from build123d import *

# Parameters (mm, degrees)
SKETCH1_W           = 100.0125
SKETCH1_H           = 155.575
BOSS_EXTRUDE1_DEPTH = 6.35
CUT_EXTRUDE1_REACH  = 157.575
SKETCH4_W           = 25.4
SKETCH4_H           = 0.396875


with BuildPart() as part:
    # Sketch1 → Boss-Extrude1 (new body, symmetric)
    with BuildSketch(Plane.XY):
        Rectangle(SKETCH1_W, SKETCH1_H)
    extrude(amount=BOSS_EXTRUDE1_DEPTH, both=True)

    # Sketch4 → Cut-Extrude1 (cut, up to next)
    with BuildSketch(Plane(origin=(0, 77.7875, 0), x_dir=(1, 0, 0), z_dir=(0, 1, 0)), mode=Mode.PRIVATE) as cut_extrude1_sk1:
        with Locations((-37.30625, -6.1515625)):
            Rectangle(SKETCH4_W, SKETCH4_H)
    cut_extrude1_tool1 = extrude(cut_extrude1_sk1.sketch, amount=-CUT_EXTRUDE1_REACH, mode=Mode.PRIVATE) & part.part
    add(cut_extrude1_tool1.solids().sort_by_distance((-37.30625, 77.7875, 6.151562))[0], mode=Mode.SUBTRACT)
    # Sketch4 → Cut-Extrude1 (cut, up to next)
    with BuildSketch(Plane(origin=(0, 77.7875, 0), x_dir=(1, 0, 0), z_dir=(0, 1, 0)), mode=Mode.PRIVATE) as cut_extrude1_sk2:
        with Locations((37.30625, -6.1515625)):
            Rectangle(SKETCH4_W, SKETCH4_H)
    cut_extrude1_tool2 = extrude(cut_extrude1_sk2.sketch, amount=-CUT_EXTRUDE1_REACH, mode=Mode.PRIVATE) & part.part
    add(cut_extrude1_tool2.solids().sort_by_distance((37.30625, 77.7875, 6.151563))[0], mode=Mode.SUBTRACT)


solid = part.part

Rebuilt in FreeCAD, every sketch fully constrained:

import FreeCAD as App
import Part
import Sketcher

V = App.Vector
Q = App.Units.Quantity

doc = App.newDocument("Part")
body = doc.addObject("PartDesign::Body", "Body")

# Sketch on XY plane
sketch1 = body.newObject("Sketcher::SketchObject", "Sketch")
sketch1.AttachmentSupport = (doc.getObject("XY_Plane"), [""])
sketch1.MapMode = "FlatFace"
sketch1.addGeometry([
    Part.LineSegment(V(-50, 78, 0), V(-50, -78, 0)),
    Part.LineSegment(V(-50, -78, 0), V(50, -78, 0)),
    Part.LineSegment(V(50, -78, 0), V(50, 78, 0)),
    Part.LineSegment(V(50, 78, 0), V(-50, 78, 0)),
], False)
sketch1.addConstraint([
    Sketcher.Constraint("Coincident", 0, 2, 1, 1),
    Sketcher.Constraint("Coincident", 1, 2, 2, 1),
    Sketcher.Constraint("Coincident", 2, 2, 3, 1),
    Sketcher.Constraint("Coincident", 3, 2, 0, 1),
    Sketcher.Constraint("Vertical", 0),
    Sketcher.Constraint("Horizontal", 1),
    Sketcher.Constraint("Vertical", 2),
    Sketcher.Constraint("Horizontal", 3),
    Sketcher.Constraint("Symmetric", 0, 2, 2, 2, -1, 1),
    Sketcher.Constraint("DistanceX", 1, 1, 1, 2, Q("3.9375 in")),
    Sketcher.Constraint("DistanceY", 0, 2, 0, 1, Q("6.125 in")),
])
pad1 = body.newObject("PartDesign::Pad", "Pad")
pad1.Profile = sketch1
pad1.Length = Q("0.5 in")
pad1.Midplane = True

# Sketch on XZ plane
sketch2 = body.newObject("Sketcher::SketchObject", "Sketch001")
sketch2.AttachmentSupport = (doc.getObject("XZ_Plane"), [""])
sketch2.MapMode = "FlatFace"
sketch2.AttachmentOffset = App.Placement(V(0, 0, -3.0625 * 25.4), App.Rotation())
sketch2.addGeometry([
    Part.LineSegment(V(-50.01, 5.95, 0), V(-50.01, 6.35, 0)),
    Part.LineSegment(V(-50.01, 6.35, 0), V(-24.61, 6.35, 0)),
    Part.LineSegment(V(-24.61, 6.35, 0), V(-24.61, 5.95, 0)),
    Part.LineSegment(V(-24.61, 5.95, 0), V(-50.01, 5.95, 0)),
], False)
sketch2.addConstraint([
    Sketcher.Constraint("Coincident", 0, 2, 1, 1),
    Sketcher.Constraint("Coincident", 1, 2, 2, 1),
    Sketcher.Constraint("Coincident", 2, 2, 3, 1),
    Sketcher.Constraint("Coincident", 3, 2, 0, 1),
    Sketcher.Constraint("Vertical", 0),
    Sketcher.Constraint("Horizontal", 1),
    Sketcher.Constraint("Vertical", 2),
    Sketcher.Constraint("Horizontal", 3),
    Sketcher.Constraint("DistanceX", 1, 1, 1, 2, Q("1 in")),
    Sketcher.Constraint("DistanceY", 0, 1, 0, 2, Q("0.015625 in")),
    Sketcher.Constraint("DistanceY", -1, 1, 0, 2, Q("0.25 in")),
    Sketcher.Constraint("DistanceX", 0, 2, -1, 1, Q("1.96875 in")),
])
pocket1 = body.newObject("PartDesign::Pocket", "Pocket")
pocket1.Profile = sketch2
pocket1.Type = "UpToFirst"
pocket1.Reversed = True

# Sketch on XZ plane
sketch3 = body.newObject("Sketcher::SketchObject", "Sketch002")
sketch3.AttachmentSupport = (doc.getObject("XZ_Plane"), [""])
sketch3.MapMode = "FlatFace"
sketch3.AttachmentOffset = App.Placement(V(0, 0, -3.0625 * 25.4), App.Rotation())
sketch3.addGeometry([
    Part.LineSegment(V(24.61, 5.95, 0), V(24.61, 6.35, 0)),
    Part.LineSegment(V(24.61, 6.35, 0), V(50.01, 6.35, 0)),
    Part.LineSegment(V(50.01, 6.35, 0), V(50.01, 5.95, 0)),
    Part.LineSegment(V(50.01, 5.95, 0), V(24.61, 5.95, 0)),
], False)
sketch3.addConstraint([
    Sketcher.Constraint("Coincident", 0, 2, 1, 1),
    Sketcher.Constraint("Coincident", 1, 2, 2, 1),
    Sketcher.Constraint("Coincident", 2, 2, 3, 1),
    Sketcher.Constraint("Coincident", 3, 2, 0, 1),
    Sketcher.Constraint("Vertical", 0),
    Sketcher.Constraint("Horizontal", 1),
    Sketcher.Constraint("Vertical", 2),
    Sketcher.Constraint("Horizontal", 3),
    Sketcher.Constraint("DistanceX", 1, 1, 1, 2, Q("1 in")),
    Sketcher.Constraint("DistanceY", 0, 1, 0, 2, Q("0.015625 in")),
    Sketcher.Constraint("DistanceY", -1, 1, 0, 2, Q("0.25 in")),
    Sketcher.Constraint("DistanceX", -1, 1, 0, 2, Q("0.96875 in")),
])
pocket2 = body.newObject("PartDesign::Pocket", "Pocket001")
pocket2.Profile = sketch3
pocket2.Type = "UpToFirst"
pocket2.Reversed = True

doc.recompute()
